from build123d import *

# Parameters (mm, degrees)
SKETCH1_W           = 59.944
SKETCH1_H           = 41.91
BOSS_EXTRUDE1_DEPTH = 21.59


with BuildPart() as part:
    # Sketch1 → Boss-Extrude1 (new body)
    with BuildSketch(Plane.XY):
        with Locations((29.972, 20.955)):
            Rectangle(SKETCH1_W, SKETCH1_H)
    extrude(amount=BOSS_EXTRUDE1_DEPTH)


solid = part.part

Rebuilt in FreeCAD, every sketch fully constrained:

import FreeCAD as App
import Part
import Sketcher
from FreeCAD import Vector
Q = App.Units.Quantity


def add_polygon(sketch, points):
    """Adds a closed chain of lines whose ends are joined by coincident constraints."""
    first, n = sketch.GeometryCount, len(points)
    for a, b in zip(points, points[1:] + points[:1]):
        sketch.addGeometry(Part.LineSegment(App.Vector(*a, 0), App.Vector(*b, 0)), False)
    for i in range(n):
        sketch.addConstraint(Sketcher.Constraint("Coincident", first + i, 2, first + (i + 1) % n, 1))

doc = App.newDocument("Part")
body = doc.addObject("PartDesign::Body", "Body")

# Sketch on XY plane
sketch1 = doc.addObject("Sketcher::SketchObject", "Sketch")
body.addObject(sketch1)
sketch1.AttachmentSupport = (doc.XY_Plane, [""])
sketch1.MapMode = "FlatFace"
add_polygon(sketch1, [(0, 42), (0, 0), (60, 0), (60, 42)])  # lines 0-3
sketch1.addConstraint(Sketcher.Constraint("Vertical", 0))
sketch1.addConstraint(Sketcher.Constraint("Horizontal", 1))
sketch1.addConstraint(Sketcher.Constraint("Vertical", 2))
sketch1.addConstraint(Sketcher.Constraint("Horizontal", 3))
sketch1.addConstraint(Sketcher.Constraint("Coincident", 0, 2, -1, 1))
sketch1.addConstraint(Sketcher.Constraint("DistanceX", 1, 1, 1, 2, Q("2.36 in")))
sketch1.addConstraint(Sketcher.Constraint("DistanceY", 0, 2, 0, 1, Q("1.65 in")))
pad1 = doc.addObject("PartDesign::Pad", "Pad")
body.addObject(pad1)
pad1.Profile = sketch1
pad1.Length = Q("0.85 in")

doc.recompute()
